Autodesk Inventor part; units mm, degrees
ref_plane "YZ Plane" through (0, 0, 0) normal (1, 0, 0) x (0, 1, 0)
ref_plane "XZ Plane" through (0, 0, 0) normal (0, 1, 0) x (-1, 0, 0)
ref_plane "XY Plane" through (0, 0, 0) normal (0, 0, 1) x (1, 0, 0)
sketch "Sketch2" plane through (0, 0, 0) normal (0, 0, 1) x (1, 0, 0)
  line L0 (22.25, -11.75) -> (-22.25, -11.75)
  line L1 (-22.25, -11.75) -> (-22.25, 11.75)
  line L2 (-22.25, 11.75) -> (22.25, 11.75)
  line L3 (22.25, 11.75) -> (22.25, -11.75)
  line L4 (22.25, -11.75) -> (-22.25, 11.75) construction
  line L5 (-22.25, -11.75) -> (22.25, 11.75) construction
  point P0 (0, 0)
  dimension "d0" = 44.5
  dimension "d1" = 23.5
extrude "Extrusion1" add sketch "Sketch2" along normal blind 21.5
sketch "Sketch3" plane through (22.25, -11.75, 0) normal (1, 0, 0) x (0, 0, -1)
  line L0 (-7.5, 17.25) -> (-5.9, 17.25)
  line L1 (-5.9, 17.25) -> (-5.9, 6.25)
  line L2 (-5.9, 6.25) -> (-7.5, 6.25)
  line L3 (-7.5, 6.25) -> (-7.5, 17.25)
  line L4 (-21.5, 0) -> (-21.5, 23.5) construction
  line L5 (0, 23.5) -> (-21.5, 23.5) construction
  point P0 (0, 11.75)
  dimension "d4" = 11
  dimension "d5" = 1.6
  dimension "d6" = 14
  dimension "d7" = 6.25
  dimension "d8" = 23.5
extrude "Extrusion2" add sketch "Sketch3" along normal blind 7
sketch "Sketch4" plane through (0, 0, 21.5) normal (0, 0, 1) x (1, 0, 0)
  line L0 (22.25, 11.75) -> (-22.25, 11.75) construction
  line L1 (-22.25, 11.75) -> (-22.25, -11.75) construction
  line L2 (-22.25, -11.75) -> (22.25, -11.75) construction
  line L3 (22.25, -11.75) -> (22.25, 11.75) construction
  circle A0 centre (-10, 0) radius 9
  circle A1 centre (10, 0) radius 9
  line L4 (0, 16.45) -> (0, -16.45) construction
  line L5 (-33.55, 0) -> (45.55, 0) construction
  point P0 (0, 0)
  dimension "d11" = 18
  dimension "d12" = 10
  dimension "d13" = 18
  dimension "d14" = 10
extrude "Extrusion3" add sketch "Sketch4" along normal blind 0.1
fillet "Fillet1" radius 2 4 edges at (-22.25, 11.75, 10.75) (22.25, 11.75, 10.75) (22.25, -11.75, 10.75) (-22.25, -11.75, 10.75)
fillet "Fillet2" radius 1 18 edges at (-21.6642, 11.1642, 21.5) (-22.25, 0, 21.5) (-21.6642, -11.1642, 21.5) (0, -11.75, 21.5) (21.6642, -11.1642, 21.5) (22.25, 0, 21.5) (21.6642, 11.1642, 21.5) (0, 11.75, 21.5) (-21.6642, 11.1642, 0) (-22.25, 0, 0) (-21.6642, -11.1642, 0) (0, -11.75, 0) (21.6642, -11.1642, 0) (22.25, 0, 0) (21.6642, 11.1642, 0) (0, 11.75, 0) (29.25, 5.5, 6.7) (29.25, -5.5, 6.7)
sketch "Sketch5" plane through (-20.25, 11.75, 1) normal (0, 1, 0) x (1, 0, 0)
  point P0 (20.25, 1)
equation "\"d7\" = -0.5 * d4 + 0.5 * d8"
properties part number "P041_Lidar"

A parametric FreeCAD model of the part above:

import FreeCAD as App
import Part
import Sketcher

V = App.Vector


def edges_at(feature, points):
    """Names of the edges that pass closest to the given points."""
    edges = feature.Shape.Edges
    near = lambda p: min(range(len(edges)), key=lambda i: edges[i].distToShape(Part.Vertex(*p))[0])
    return sorted({f"Edge{near(p) + 1}" for p in points})

doc = App.newDocument("Part")
body = doc.addObject("PartDesign::Body", "Body")

sketch1 = body.newObject("Sketcher::SketchObject", "Sketch")
sketch1.AttachmentSupport = (doc.getObject("XY_Plane"), [""])
sketch1.MapMode = "FlatFace"
sketch1.addGeometry(Part.LineSegment(V(-22.25, -11.75, 0), V(22.25, -11.75, 0)), False)
sketch1.addGeometry(Part.LineSegment(V(22.25, -11.75, 0), V(22.25, 11.75, 0)), False)
sketch1.addGeometry(Part.LineSegment(V(22.25, 11.75, 0), V(-22.25, 11.75, 0)), False)
sketch1.addGeometry(Part.LineSegment(V(-22.25, 11.75, 0), V(-22.25, -11.75, 0)), False)
sketch1.addConstraint(Sketcher.Constraint("Coincident", 0, 2, 1, 1))
sketch1.addConstraint(Sketcher.Constraint("Coincident", 1, 2, 2, 1))
sketch1.addConstraint(Sketcher.Constraint("Coincident", 2, 2, 3, 1))
sketch1.addConstraint(Sketcher.Constraint("Coincident", 3, 2, 0, 1))
sketch1.addConstraint(Sketcher.Constraint("Horizontal", 0))
sketch1.addConstraint(Sketcher.Constraint("Vertical", 1))
sketch1.addConstraint(Sketcher.Constraint("Horizontal", 2))
sketch1.addConstraint(Sketcher.Constraint("Vertical", 3))
sketch1.addConstraint(Sketcher.Constraint("Symmetric", 0, 2, 2, 2, -1, 1))
sketch1.addConstraint(Sketcher.Constraint("DistanceX", 0, 1, 0, 2, 44.5))
sketch1.addConstraint(Sketcher.Constraint("DistanceY", 1, 1, 1, 2, 23.5))
pad1 = body.newObject("PartDesign::Pad", "Pad")
pad1.Profile = sketch1
pad1.Length = 21.5

sketch2 = body.newObject("Sketcher::SketchObject", "Sketch001")
sketch2.AttachmentSupport = (doc.getObject("YZ_Plane"), [""])
sketch2.MapMode = "FlatFace"
sketch2.AttachmentOffset = App.Placement(V(0, 0, 22.25), App.Rotation())
sketch2.addGeometry(Part.LineSegment(V(5.5, 5.9, 0), V(5.5, 7.5, 0)), False)
sketch2.addGeometry(Part.LineSegment(V(5.5, 7.5, 0), V(-5.5, 7.5, 0)), False)
sketch2.addGeometry(Part.LineSegment(V(-5.5, 7.5, 0), V(-5.5, 5.9, 0)), False)
sketch2.addGeometry(Part.LineSegment(V(-5.5, 5.9, 0), V(5.5, 5.9, 0)), False)
sketch2.addConstraint(Sketcher.Constraint("Coincident", 0, 2, 1, 1))
sketch2.addConstraint(Sketcher.Constraint("Coincident", 1, 2, 2, 1))
sketch2.addConstraint(Sketcher.Constraint("Coincident", 2, 2, 3, 1))
sketch2.addConstraint(Sketcher.Constraint("Coincident", 3, 2, 0, 1))
sketch2.addConstraint(Sketcher.Constraint("Vertical", 0))
sketch2.addConstraint(Sketcher.Constraint("Horizontal", 1))
sketch2.addConstraint(Sketcher.Constraint("Vertical", 2))
sketch2.addConstraint(Sketcher.Constraint("Horizontal", 3))
sketch2.addConstraint(Sketcher.Constraint("DistanceX", 1, 2, 1, 1, 11.0))
sketch2.addConstraint(Sketcher.Constraint("DistanceY", 0, 1, 0, 2, 1.6))
sketch2.addConstraint(Sketcher.Constraint("DistanceX", -1, 1, 0, 2, 5.5))
sketch2.addConstraint(Sketcher.Constraint("DistanceY", -1, 1, 0, 2, 7.5))
pad2 = body.newObject("PartDesign::Pad", "Pad001")
pad2.Profile = sketch2
pad2.Length = 7

sketch3 = body.newObject("Sketcher::SketchObject", "Sketch002")
sketch3.AttachmentSupport = (doc.getObject("XY_Plane"), [""])
sketch3.MapMode = "FlatFace"
sketch3.AttachmentOffset = App.Placement(V(0, 0, 21.5), App.Rotation())
sketch3.addGeometry(Part.Circle(V(-10, 0, 0), V(0, 0, 1), 9), False)
sketch3.addGeometry(Part.Circle(V(10, 0, 0), V(0, 0, 1), 9), False)
sketch3.addConstraint(Sketcher.Constraint("Equal", 0, 1))
sketch3.addConstraint(Sketcher.Constraint("Symmetric", 0, 3, 1, 3, -1, 1))
sketch3.addConstraint(Sketcher.Constraint("PointOnObject", 0, 3, -1))
sketch3.addConstraint(Sketcher.Constraint("Diameter", 0, 18.0))
sketch3.addConstraint(Sketcher.Constraint("DistanceX", 0, 3, -1, 1, 10.0))
pad3 = body.newObject("PartDesign::Pad", "Pad002")
pad3.Profile = sketch3
pad3.Length = 0.1
doc.recompute()

fillet = body.newObject("PartDesign::Fillet", "Fillet")
fillet.Base = (pad3, edges_at(pad3, [
    (-22.25, 11.75, 10.75),
    (22.25, 11.75, 10.75),
    (22.25, -11.75, 10.75),
    (-22.25, -11.75, 10.75),
]))
fillet.Radius = 2
doc.recompute()

fillet2 = body.newObject("PartDesign::Fillet", "Fillet001")
fillet2.Base = (fillet, edges_at(fillet, [
    (-21.664, 11.164, 21.5),
    (-22.25, 0, 21.5),
    (-21.664, -11.164, 21.5),
    (0, -11.75, 21.5),
    (21.664, -11.164, 21.5),
    (22.25, 0, 21.5),
    (21.664, 11.164, 21.5),
    (0, 11.75, 21.5),
    (-21.664, 11.164, 0),
    (-22.25, 0, 0),
    (-21.664, -11.164, 0),
    (0, -11.75, 0),
    (21.664, -11.164, 0),
    (22.25, 0, 0),
    (21.664, 11.164, 0),
    (0, 11.75, 0),
    (29.25, 5.5, 6.7),
    (29.25, -5.5, 6.7),
]))
fillet2.Radius = 1

doc.recompute()
